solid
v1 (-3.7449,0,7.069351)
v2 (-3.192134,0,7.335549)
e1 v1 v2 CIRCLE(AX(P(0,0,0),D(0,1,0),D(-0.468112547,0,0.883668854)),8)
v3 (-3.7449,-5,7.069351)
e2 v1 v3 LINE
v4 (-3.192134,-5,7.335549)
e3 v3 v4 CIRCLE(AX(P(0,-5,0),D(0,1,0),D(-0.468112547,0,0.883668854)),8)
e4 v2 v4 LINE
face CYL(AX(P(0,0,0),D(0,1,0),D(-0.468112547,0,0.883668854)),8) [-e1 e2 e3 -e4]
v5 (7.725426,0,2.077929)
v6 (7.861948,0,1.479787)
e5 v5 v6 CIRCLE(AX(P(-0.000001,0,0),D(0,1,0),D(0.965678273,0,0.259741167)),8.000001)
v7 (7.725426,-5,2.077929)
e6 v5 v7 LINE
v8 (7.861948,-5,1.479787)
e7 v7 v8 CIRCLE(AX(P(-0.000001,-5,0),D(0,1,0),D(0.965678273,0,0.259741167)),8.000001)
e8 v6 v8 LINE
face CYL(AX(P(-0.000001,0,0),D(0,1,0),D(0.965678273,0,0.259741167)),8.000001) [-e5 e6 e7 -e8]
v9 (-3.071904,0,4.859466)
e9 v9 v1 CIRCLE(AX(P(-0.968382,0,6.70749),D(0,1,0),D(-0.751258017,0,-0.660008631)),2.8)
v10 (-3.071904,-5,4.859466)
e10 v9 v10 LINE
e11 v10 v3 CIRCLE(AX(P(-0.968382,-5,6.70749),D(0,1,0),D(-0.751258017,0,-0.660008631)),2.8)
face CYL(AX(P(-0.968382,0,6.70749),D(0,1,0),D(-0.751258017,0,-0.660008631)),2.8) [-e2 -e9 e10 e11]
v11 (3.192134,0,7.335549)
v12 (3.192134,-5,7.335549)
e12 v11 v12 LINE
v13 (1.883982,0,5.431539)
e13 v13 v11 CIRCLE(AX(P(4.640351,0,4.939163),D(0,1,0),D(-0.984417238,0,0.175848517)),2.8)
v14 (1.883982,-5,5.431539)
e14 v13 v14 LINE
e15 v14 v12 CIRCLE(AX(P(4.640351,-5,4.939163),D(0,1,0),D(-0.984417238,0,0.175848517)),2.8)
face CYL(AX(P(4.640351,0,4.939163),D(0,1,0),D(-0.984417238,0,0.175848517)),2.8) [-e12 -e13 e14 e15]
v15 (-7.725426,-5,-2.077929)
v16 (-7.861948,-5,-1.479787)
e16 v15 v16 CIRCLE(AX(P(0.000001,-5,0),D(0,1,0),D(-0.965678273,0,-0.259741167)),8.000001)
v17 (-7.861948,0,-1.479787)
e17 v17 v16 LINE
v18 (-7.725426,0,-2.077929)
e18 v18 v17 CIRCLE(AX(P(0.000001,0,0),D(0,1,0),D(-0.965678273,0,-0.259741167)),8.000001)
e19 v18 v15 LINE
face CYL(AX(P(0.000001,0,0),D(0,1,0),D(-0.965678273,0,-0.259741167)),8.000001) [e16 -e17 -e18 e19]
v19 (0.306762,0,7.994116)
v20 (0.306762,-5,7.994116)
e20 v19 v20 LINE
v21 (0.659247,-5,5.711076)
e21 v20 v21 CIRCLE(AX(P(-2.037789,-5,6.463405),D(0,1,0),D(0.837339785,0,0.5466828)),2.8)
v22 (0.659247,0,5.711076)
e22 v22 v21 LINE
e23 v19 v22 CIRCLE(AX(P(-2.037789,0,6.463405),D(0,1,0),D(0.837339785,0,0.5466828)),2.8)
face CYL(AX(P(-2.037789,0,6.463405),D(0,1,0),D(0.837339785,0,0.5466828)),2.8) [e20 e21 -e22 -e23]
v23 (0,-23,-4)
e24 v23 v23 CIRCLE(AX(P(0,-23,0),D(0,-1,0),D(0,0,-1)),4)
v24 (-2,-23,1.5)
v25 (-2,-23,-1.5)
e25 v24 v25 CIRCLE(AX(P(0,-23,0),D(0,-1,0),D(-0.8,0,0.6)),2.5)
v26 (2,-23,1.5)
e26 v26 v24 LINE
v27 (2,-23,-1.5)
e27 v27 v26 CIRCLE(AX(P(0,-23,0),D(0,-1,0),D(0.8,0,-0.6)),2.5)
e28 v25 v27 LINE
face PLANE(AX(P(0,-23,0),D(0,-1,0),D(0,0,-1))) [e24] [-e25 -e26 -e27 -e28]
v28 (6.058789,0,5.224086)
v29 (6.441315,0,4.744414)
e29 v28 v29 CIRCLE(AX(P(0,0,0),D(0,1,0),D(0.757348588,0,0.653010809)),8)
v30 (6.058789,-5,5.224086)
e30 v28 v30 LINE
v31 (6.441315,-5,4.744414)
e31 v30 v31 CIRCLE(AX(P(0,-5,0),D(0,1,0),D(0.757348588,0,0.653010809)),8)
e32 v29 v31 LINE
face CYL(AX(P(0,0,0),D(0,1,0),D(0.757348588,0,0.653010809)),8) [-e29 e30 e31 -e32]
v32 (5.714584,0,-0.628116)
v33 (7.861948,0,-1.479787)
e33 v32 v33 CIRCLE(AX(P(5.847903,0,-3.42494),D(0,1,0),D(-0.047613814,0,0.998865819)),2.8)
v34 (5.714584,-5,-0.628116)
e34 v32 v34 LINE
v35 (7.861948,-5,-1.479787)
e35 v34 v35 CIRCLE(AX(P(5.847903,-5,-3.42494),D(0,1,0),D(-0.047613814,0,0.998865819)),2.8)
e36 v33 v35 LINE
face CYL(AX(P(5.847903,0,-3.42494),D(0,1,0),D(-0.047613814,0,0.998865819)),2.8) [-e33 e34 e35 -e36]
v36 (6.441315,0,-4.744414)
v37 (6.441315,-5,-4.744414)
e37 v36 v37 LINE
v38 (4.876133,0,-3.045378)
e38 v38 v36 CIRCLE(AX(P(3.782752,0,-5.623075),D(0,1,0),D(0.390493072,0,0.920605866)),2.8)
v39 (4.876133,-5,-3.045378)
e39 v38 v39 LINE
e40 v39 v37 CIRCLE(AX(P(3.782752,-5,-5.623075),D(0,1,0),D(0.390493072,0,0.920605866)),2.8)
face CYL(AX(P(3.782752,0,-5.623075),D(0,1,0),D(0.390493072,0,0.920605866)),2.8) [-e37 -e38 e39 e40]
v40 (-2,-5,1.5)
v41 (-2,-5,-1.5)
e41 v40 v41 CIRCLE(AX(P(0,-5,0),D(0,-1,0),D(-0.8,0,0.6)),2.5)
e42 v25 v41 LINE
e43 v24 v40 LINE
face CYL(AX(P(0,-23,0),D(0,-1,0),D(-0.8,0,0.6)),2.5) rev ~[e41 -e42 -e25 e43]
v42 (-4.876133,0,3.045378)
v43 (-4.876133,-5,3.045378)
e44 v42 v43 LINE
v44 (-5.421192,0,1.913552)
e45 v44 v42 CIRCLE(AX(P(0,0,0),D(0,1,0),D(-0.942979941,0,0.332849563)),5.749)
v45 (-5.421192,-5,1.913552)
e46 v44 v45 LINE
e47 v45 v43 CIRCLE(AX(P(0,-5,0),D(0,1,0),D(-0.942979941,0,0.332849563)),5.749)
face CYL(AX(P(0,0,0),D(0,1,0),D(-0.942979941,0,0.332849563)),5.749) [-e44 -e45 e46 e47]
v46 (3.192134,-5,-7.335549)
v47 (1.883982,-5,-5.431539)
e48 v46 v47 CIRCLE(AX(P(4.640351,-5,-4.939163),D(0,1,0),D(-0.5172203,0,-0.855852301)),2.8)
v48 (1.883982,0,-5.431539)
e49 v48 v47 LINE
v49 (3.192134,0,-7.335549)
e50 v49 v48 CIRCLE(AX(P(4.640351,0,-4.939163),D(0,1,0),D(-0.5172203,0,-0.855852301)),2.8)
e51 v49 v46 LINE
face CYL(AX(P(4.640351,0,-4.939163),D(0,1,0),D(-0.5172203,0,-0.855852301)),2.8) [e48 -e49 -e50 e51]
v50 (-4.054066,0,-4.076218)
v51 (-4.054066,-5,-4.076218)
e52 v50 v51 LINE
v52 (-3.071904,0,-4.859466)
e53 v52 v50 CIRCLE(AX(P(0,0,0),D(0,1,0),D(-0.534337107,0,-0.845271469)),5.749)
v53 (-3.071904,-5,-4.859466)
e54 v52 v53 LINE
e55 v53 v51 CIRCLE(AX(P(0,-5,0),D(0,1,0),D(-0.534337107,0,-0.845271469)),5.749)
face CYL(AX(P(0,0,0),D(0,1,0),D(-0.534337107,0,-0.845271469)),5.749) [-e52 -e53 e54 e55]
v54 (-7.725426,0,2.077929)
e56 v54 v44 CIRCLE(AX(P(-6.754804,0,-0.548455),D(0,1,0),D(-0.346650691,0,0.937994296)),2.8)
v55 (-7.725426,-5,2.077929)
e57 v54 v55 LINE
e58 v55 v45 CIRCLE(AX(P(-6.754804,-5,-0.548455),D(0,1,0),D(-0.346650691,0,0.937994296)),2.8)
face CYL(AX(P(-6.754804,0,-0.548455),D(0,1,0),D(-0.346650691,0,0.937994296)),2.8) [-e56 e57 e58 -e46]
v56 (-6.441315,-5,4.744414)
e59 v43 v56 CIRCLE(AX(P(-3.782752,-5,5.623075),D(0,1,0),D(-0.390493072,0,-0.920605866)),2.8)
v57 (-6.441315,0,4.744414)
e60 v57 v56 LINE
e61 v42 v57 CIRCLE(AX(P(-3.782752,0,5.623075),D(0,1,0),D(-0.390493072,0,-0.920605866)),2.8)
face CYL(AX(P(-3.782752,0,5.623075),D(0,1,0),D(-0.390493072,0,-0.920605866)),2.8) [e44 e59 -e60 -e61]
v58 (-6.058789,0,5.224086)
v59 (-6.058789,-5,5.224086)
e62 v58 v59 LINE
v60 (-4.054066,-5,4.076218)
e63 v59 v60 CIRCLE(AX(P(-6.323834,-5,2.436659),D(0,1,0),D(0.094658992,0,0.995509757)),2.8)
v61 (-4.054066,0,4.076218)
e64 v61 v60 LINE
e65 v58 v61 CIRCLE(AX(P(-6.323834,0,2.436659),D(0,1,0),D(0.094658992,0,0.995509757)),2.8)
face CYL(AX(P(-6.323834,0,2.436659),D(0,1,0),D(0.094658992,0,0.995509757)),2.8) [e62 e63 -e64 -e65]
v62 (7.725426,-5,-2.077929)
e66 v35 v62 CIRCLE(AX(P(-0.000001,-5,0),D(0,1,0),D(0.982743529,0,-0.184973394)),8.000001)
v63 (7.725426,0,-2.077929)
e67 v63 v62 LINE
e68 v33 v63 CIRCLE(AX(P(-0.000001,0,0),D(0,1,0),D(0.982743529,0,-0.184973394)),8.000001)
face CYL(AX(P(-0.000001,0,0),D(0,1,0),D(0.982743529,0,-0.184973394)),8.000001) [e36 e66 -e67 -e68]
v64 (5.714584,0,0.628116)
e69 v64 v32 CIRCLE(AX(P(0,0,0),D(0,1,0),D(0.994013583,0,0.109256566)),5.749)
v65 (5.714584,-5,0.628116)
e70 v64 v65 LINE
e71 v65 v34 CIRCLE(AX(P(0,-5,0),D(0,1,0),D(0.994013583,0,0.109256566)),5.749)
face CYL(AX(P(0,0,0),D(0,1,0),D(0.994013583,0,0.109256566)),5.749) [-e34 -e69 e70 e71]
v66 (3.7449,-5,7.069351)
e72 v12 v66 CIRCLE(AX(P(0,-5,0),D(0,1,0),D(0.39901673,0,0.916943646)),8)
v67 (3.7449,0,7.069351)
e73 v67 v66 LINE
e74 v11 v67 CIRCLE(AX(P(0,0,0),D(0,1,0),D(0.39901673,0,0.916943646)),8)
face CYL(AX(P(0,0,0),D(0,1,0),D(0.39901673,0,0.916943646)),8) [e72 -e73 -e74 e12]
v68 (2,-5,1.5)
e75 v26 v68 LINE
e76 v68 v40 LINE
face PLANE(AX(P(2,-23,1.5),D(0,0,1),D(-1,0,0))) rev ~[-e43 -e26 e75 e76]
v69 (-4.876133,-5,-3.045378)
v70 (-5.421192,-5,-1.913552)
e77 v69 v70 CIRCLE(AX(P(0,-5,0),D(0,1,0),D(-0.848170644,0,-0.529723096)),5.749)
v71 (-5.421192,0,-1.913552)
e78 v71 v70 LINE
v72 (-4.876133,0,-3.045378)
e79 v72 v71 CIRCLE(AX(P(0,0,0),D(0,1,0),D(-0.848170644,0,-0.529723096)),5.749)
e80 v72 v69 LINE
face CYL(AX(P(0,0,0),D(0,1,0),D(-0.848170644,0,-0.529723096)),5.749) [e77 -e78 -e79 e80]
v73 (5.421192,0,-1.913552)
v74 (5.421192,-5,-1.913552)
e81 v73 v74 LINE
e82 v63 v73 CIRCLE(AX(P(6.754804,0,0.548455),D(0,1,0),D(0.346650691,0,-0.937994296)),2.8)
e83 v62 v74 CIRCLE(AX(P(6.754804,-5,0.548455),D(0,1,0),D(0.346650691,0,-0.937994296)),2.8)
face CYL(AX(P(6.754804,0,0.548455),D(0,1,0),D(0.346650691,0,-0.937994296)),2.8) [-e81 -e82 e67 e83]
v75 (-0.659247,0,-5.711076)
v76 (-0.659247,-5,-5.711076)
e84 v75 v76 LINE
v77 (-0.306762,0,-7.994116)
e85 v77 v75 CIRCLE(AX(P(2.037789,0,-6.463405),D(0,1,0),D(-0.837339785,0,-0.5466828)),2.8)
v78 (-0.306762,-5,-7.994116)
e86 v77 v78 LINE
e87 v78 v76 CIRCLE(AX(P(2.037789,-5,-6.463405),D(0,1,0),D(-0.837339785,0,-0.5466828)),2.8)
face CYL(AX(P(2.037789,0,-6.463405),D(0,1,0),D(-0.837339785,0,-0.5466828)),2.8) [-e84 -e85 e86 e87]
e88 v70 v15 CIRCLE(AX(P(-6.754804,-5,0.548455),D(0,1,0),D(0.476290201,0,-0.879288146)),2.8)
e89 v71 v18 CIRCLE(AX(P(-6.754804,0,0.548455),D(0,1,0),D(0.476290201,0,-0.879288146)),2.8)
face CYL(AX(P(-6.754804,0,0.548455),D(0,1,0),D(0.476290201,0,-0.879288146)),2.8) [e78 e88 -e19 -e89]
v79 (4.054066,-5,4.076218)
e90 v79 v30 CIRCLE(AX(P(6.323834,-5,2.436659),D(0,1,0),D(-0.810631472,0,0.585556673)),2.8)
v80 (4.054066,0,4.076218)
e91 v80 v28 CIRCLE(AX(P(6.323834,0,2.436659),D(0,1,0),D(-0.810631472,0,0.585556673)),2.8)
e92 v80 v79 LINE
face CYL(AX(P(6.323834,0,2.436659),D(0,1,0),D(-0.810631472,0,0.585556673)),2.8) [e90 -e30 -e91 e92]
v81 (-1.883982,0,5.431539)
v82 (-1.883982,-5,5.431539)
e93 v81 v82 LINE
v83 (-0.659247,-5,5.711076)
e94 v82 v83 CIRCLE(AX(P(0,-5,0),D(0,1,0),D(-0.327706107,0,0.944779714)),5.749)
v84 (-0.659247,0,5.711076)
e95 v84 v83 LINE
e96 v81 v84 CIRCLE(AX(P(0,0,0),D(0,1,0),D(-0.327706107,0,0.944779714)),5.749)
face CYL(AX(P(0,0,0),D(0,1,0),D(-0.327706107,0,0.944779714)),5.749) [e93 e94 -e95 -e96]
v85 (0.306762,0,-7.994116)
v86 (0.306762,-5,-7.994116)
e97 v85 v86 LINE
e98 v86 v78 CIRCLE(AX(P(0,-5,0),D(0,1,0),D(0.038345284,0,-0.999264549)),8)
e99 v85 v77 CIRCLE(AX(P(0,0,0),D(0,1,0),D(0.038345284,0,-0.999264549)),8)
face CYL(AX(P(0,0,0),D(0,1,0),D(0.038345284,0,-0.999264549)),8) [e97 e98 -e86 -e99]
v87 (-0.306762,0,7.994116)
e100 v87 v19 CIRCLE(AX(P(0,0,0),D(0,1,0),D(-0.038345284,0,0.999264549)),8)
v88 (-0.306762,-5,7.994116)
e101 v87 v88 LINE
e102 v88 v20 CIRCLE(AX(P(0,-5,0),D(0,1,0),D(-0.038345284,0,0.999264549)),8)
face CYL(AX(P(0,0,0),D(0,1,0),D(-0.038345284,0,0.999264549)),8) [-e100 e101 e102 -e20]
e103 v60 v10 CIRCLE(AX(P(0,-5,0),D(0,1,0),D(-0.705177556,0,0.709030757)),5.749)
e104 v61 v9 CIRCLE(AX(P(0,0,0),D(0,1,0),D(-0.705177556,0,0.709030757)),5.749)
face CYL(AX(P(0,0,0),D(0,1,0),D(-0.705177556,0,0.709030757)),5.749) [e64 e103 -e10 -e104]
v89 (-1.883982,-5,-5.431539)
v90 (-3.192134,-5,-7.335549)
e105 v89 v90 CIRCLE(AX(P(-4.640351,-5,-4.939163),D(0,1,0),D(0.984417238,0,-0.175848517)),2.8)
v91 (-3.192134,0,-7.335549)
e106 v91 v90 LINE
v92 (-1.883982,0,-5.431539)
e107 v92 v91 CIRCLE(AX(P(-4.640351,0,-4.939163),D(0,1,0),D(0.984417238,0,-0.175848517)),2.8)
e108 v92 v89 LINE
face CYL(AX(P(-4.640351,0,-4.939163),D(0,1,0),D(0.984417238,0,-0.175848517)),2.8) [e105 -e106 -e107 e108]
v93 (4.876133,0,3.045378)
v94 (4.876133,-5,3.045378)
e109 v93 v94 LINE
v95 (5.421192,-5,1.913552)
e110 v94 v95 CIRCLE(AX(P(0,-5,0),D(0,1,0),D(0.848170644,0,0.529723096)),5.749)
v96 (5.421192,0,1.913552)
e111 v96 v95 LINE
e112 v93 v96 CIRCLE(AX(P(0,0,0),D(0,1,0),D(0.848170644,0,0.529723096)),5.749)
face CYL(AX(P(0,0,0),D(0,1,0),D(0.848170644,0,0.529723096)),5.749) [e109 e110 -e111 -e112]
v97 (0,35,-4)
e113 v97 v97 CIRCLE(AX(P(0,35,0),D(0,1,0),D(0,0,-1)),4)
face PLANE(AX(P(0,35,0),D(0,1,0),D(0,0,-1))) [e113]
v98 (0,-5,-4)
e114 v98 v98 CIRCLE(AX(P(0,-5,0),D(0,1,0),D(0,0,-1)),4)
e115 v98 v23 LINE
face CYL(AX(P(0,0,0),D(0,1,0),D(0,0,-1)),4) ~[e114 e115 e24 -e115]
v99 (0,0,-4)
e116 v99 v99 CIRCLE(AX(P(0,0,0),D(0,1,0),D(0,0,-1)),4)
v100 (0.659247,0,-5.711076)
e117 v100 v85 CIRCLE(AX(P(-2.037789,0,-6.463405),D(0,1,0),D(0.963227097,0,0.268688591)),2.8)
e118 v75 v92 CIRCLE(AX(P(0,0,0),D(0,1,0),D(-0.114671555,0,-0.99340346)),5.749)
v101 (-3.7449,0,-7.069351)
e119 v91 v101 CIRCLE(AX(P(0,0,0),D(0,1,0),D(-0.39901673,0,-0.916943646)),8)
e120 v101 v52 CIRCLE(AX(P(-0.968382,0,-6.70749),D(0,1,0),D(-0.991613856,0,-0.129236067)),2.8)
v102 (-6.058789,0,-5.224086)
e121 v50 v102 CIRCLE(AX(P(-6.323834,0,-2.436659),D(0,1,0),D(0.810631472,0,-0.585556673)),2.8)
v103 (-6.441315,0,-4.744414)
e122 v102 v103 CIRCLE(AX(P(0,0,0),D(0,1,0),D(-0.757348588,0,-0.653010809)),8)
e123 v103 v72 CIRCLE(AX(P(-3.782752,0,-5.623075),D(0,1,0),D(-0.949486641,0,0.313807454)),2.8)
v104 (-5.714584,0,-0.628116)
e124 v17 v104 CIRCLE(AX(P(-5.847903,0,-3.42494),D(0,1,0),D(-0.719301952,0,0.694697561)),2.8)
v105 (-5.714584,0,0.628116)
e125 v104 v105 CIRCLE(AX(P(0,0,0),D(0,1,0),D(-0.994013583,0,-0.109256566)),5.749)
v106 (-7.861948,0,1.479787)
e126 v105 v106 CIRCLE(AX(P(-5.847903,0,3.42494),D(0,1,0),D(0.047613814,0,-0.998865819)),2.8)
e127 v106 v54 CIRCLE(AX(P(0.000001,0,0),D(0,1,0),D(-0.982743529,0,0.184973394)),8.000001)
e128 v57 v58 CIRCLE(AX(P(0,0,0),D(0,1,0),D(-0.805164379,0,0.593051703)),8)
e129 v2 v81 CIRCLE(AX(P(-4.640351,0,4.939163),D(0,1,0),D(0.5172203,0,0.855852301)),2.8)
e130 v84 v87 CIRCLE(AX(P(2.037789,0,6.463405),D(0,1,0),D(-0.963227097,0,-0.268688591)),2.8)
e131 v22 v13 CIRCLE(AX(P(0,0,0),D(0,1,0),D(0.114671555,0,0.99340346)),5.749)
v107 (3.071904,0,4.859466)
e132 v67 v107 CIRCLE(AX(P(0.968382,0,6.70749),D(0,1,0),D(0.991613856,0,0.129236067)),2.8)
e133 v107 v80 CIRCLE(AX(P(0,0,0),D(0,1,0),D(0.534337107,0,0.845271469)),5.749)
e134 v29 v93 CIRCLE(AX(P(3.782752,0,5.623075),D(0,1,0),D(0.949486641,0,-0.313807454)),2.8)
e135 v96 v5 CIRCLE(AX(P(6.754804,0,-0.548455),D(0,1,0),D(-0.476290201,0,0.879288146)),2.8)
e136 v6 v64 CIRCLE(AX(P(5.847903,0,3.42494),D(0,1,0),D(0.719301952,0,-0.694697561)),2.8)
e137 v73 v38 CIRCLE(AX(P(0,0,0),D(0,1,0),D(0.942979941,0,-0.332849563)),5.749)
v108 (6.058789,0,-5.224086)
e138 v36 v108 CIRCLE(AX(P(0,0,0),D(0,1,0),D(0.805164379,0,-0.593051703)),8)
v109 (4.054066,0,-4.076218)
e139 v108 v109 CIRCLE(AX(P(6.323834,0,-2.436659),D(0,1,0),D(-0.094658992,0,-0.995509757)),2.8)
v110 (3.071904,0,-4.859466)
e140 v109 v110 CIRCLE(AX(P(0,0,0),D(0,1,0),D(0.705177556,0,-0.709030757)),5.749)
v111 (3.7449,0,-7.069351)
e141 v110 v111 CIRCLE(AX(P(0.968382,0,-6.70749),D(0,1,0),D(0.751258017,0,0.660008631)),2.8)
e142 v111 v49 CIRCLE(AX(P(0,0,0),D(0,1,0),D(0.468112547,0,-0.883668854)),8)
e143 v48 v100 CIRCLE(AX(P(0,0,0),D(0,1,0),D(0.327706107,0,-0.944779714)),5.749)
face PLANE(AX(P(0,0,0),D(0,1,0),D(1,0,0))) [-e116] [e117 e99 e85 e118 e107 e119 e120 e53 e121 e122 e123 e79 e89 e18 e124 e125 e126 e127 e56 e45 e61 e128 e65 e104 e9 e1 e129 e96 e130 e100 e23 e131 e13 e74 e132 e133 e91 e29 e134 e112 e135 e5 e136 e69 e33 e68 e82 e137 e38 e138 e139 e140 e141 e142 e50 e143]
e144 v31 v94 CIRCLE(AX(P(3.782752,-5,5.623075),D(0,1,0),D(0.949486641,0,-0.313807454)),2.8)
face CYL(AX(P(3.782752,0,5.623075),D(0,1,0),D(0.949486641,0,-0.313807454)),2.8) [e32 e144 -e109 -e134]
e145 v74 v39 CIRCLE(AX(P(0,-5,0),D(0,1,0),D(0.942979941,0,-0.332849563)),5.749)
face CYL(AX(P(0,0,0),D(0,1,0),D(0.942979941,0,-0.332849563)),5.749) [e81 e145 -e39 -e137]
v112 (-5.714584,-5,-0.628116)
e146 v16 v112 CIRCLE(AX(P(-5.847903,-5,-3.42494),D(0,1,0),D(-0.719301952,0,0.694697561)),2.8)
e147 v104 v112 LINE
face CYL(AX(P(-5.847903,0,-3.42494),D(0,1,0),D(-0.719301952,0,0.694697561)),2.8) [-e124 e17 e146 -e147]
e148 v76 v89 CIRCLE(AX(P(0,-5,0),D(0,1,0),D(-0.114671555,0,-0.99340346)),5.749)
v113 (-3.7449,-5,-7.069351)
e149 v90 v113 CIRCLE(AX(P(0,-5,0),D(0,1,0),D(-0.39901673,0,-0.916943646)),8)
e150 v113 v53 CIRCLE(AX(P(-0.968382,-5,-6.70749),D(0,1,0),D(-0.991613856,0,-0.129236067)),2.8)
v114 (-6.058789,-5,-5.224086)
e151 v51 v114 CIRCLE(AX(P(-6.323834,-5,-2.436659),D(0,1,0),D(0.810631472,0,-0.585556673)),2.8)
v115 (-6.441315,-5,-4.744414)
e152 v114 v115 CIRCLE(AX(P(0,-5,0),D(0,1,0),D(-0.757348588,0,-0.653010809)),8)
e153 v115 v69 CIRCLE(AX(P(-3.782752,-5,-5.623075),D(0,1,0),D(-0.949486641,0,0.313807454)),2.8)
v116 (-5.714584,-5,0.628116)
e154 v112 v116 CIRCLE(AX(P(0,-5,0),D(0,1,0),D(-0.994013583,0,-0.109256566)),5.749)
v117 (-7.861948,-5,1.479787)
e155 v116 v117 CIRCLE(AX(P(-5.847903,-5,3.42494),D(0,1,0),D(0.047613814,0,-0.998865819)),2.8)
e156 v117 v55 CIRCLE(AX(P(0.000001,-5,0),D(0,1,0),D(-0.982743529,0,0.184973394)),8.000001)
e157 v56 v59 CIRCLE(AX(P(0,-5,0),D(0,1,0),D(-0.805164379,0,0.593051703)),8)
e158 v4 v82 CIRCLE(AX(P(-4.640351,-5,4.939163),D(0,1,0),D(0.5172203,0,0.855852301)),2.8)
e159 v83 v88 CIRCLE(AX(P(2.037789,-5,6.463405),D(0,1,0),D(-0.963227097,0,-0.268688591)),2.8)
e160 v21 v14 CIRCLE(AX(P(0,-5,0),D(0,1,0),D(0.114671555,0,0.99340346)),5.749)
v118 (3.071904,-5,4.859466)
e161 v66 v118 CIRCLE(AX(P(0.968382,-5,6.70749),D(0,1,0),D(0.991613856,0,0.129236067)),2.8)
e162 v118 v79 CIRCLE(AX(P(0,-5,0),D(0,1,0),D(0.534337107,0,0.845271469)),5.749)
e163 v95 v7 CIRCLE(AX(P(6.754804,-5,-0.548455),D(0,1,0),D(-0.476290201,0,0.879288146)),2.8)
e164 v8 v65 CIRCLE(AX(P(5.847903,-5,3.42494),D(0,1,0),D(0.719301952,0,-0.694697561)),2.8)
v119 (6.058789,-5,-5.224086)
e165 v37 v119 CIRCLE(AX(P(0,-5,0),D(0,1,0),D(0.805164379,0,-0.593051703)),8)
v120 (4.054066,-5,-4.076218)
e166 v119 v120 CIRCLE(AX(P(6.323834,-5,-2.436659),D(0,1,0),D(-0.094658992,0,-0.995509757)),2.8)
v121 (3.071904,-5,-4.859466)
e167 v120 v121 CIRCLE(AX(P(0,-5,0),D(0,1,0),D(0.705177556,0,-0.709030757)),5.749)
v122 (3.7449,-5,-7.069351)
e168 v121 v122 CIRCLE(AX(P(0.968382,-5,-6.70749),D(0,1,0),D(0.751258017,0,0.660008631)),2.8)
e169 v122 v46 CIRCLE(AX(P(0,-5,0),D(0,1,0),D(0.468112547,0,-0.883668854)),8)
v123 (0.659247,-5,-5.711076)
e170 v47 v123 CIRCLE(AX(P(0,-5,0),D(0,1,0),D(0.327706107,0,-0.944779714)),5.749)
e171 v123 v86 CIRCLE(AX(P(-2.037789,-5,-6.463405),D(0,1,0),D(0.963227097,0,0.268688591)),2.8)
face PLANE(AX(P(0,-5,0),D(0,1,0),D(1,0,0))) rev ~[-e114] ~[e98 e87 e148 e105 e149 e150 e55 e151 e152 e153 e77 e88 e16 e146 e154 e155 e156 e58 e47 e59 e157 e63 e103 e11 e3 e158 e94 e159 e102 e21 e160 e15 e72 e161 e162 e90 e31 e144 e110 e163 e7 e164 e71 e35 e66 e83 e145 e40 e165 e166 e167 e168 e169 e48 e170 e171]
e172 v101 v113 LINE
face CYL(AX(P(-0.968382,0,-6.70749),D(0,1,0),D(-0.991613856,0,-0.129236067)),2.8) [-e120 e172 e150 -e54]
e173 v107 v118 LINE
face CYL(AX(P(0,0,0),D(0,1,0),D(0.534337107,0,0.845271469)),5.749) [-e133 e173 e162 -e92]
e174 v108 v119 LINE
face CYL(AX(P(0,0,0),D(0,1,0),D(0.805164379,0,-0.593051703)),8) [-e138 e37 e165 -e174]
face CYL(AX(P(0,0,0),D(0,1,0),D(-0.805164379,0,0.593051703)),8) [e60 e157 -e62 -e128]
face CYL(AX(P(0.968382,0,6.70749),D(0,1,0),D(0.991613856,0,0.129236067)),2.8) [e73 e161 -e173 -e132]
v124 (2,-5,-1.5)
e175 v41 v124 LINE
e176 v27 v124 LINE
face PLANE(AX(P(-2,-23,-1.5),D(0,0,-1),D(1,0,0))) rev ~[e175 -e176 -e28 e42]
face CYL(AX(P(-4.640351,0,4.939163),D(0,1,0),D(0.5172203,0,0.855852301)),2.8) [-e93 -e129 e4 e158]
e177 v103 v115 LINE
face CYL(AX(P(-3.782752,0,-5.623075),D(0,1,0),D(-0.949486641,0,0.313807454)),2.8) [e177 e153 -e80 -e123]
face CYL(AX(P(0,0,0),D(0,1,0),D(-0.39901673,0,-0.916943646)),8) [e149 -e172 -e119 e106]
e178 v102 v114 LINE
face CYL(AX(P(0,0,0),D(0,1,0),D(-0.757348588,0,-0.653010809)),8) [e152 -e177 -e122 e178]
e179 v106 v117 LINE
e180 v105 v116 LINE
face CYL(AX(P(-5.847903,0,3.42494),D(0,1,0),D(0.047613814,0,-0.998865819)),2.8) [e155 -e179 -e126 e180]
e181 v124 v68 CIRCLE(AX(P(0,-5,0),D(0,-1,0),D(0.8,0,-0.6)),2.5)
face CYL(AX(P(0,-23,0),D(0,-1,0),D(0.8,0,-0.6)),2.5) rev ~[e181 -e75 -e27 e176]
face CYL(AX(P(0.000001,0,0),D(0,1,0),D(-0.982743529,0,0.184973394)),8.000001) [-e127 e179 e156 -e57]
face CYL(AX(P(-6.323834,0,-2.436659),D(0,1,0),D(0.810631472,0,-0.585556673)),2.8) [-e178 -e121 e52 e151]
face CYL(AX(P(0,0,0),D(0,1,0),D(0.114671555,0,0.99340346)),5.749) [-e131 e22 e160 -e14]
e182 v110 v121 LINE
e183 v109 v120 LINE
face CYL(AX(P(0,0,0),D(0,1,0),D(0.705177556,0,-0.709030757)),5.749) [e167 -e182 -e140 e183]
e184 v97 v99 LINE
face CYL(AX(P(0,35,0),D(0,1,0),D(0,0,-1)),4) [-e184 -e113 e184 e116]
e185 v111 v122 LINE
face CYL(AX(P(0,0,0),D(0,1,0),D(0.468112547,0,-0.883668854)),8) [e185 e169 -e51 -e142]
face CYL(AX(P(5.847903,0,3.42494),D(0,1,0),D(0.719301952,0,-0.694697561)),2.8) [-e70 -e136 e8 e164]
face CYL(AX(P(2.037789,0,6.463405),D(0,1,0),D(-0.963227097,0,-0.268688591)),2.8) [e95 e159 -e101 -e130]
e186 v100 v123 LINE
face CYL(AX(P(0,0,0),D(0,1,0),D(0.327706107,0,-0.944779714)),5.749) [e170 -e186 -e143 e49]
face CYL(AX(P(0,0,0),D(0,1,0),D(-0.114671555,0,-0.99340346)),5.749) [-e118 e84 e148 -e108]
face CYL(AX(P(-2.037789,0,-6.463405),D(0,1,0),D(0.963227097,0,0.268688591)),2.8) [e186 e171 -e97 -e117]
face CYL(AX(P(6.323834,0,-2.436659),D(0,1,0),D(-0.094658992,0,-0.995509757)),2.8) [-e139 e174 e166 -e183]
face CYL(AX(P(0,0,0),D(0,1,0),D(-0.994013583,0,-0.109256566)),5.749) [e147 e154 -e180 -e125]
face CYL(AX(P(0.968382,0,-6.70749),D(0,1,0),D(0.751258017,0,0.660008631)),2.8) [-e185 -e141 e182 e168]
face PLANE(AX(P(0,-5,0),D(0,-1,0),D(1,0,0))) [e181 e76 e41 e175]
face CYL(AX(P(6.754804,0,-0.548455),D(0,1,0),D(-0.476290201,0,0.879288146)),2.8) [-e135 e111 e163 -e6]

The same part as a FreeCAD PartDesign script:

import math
import FreeCAD as App
import Part
import Sketcher

doc = App.newDocument("Part")
body = doc.addObject("PartDesign::Body", "Body")

# Sketch on XZ plane
sketch1 = body.newObject("Sketcher::SketchObject", "Sketch")
sketch1.AttachmentSupport = (doc.getObject("XZ_Plane"), [""])
sketch1.MapMode = "FlatFace"
sketch1.addGeometry(Part.ArcOfCircle(Part.Circle(App.Vector(0.97, 6.71, 0), App.Vector(0, 0, 1), 2.8), math.radians(-41), math.radians(7)), False)
sketch1.addGeometry(Part.ArcOfCircle(Part.Circle(App.Vector(0, 0, 0), App.Vector(0, 0, 1), 5.75), math.radians(45.16), math.radians(57.7)), False)
sketch1.addGeometry(Part.ArcOfCircle(Part.Circle(App.Vector(6.32, 2.44, 0), App.Vector(0, 0, 1), 2.8), math.radians(95), math.radians(144)), False)
sketch1.addGeometry(Part.ArcOfCircle(Part.Circle(App.Vector(0, 0, 0), App.Vector(0, 0, 1), 8), math.radians(36.37), math.radians(40.77)), False)
sketch1.addGeometry(Part.ArcOfCircle(Part.Circle(App.Vector(3.78, 5.62, 0), App.Vector(0, 0, 1), 2.8), math.radians(-67), math.radians(-18)), False)
sketch1.addGeometry(Part.ArcOfCircle(Part.Circle(App.Vector(0, 0, 0), App.Vector(0, 0, 1), 5.75), math.radians(19.44), math.radians(31.99)), False)
sketch1.addGeometry(Part.ArcOfCircle(Part.Circle(App.Vector(6.75, -0.55, 0), App.Vector(0, 0, 1), 2.8), math.radians(70), math.radians(118)), False)
sketch1.addGeometry(Part.ArcOfCircle(Part.Circle(App.Vector(0, 0, 0), App.Vector(0, 0, 1), 8), math.radians(10.66), math.radians(15.05)), False)
sketch1.addGeometry(Part.ArcOfCircle(Part.Circle(App.Vector(5.85, 3.42, 0), App.Vector(0, 0, 1), 2.8), math.radians(-93), math.radians(-44)), False)
sketch1.addGeometry(Part.ArcOfCircle(Part.Circle(App.Vector(0, 0, 0), App.Vector(0, 0, 1), 5.75), math.radians(-6.27), math.radians(6.27)), False)
sketch1.addGeometry(Part.ArcOfCircle(Part.Circle(App.Vector(5.85, -3.42, 0), App.Vector(0, 0, 1), 2.8), math.radians(44), math.radians(93)), False)
sketch1.addGeometry(Part.ArcOfCircle(Part.Circle(App.Vector(0, 0, 0), App.Vector(0, 0, 1), 8), math.radians(-15.05), math.radians(-10.66)), False)
sketch1.addGeometry(Part.ArcOfCircle(Part.Circle(App.Vector(6.75, 0.55, 0), App.Vector(0, 0, 1), 2.8), math.radians(-118), math.radians(-70)), False)
sketch1.addGeometry(Part.ArcOfCircle(Part.Circle(App.Vector(0, 0, 0), App.Vector(0, 0, 1), 5.75), math.radians(-31.99), math.radians(-19.44)), False)
sketch1.addGeometry(Part.ArcOfCircle(Part.Circle(App.Vector(3.78, -5.62, 0), App.Vector(0, 0, 1), 2.8), math.radians(18), math.radians(67)), False)
sketch1.addGeometry(Part.ArcOfCircle(Part.Circle(App.Vector(0, 0, 0), App.Vector(0, 0, 1), 8), math.radians(-40.77), math.radians(-36.37)), False)
sketch1.addGeometry(Part.ArcOfCircle(Part.Circle(App.Vector(6.32, -2.44, 0), App.Vector(0, 0, 1), 2.8), math.radians(-144), math.radians(-95)), False)
sketch1.addGeometry(Part.ArcOfCircle(Part.Circle(App.Vector(0, 0, 0), App.Vector(0, 0, 1), 5.75), math.radians(-57.7), math.radians(-45.16)), False)
sketch1.addGeometry(Part.ArcOfCircle(Part.Circle(App.Vector(0.97, -6.71, 0), App.Vector(0, 0, 1), 2.8), math.radians(-7), math.radians(41)), False)
sketch1.addGeometry(Part.ArcOfCircle(Part.Circle(App.Vector(0, 0, 0), App.Vector(0, 0, 1), 8), math.radians(-66.48), math.radians(-62.09)), False)
sketch1.addGeometry(Part.ArcOfCircle(Part.Circle(App.Vector(4.64, -4.94, 0), App.Vector(0, 0, 1), 2.8), math.radians(-170), math.radians(-121)), False)
sketch1.addGeometry(Part.ArcOfCircle(Part.Circle(App.Vector(0, 0, 0), App.Vector(0, 0, 1), 5.75), math.radians(-83.42), math.radians(-70.87)), False)
sketch1.addGeometry(Part.ArcOfCircle(Part.Circle(App.Vector(-2.04, -6.46, 0), App.Vector(0, 0, 1), 2.8), math.radians(-33), math.radians(16)), False)
sketch1.addGeometry(Part.ArcOfCircle(Part.Circle(App.Vector(0, 0, 0), App.Vector(0, 0, 1), 8), math.radians(-92.2), math.radians(-87.8)), False)
sketch1.addGeometry(Part.ArcOfCircle(Part.Circle(App.Vector(2.04, -6.46, 0), App.Vector(0, 0, 1), 2.8), math.radians(164), math.radians(213)), False)
sketch1.addGeometry(Part.ArcOfCircle(Part.Circle(App.Vector(0, 0, 0), App.Vector(0, 0, 1), 5.75), math.radians(-109.13), math.radians(-96.58)), False)
sketch1.addGeometry(Part.ArcOfCircle(Part.Circle(App.Vector(-4.64, -4.94, 0), App.Vector(0, 0, 1), 2.8), math.radians(-59), math.radians(-10)), False)
sketch1.addGeometry(Part.ArcOfCircle(Part.Circle(App.Vector(0, 0, 0), App.Vector(0, 0, 1), 8), math.radians(-117.91), math.radians(-113.52)), False)
sketch1.addGeometry(Part.ArcOfCircle(Part.Circle(App.Vector(-0.97, -6.71, 0), App.Vector(0, 0, 1), 2.8), math.radians(139), math.radians(187)), False)
sketch1.addGeometry(Part.ArcOfCircle(Part.Circle(App.Vector(0, 0, 0), App.Vector(0, 0, 1), 5.75), math.radians(-134.84), math.radians(-122.3)), False)
sketch1.addGeometry(Part.ArcOfCircle(Part.Circle(App.Vector(-6.32, -2.44, 0), App.Vector(0, 0, 1), 2.8), math.radians(-85), math.radians(-36)), False)
sketch1.addGeometry(Part.ArcOfCircle(Part.Circle(App.Vector(0, 0, 0), App.Vector(0, 0, 1), 8), math.radians(-143.63), math.radians(-139.23)), False)
sketch1.addGeometry(Part.ArcOfCircle(Part.Circle(App.Vector(-3.78, -5.62, 0), App.Vector(0, 0, 1), 2.8), math.radians(113), math.radians(162)), False)
sketch1.addGeometry(Part.ArcOfCircle(Part.Circle(App.Vector(0, 0, 0), App.Vector(0, 0, 1), 5.75), math.radians(-160.56), math.radians(-148.01)), False)
sketch1.addGeometry(Part.ArcOfCircle(Part.Circle(App.Vector(-6.75, 0.55, 0), App.Vector(0, 0, 1), 2.8), math.radians(-110), math.radians(-62)), False)
sketch1.addGeometry(Part.ArcOfCircle(Part.Circle(App.Vector(0, 0, 0), App.Vector(0, 0, 1), 8), math.radians(-169.34), math.radians(-164.95)), False)
sketch1.addGeometry(Part.ArcOfCircle(Part.Circle(App.Vector(-5.85, -3.42, 0), App.Vector(0, 0, 1), 2.8), math.radians(87), math.radians(136)), False)
sketch1.addGeometry(Part.ArcOfCircle(Part.Circle(App.Vector(0, 0, 0), App.Vector(0, 0, 1), 5.75), math.radians(173.73), math.radians(186.27)), False)
sketch1.addGeometry(Part.ArcOfCircle(Part.Circle(App.Vector(-5.85, 3.42, 0), App.Vector(0, 0, 1), 2.8), math.radians(-136), math.radians(-87)), False)
sketch1.addGeometry(Part.ArcOfCircle(Part.Circle(App.Vector(0, 0, 0), App.Vector(0, 0, 1), 8), math.radians(164.95), math.radians(169.34)), False)
sketch1.addGeometry(Part.ArcOfCircle(Part.Circle(App.Vector(-6.75, -0.55, 0), App.Vector(0, 0, 1), 2.8), math.radians(62), math.radians(110)), False)
sketch1.addGeometry(Part.ArcOfCircle(Part.Circle(App.Vector(0, 0, 0), App.Vector(0, 0, 1), 5.75), math.radians(148.01), math.radians(160.56)), False)
sketch1.addGeometry(Part.ArcOfCircle(Part.Circle(App.Vector(-3.78, 5.62, 0), App.Vector(0, 0, 1), 2.8), math.radians(-162), math.radians(-113)), False)
sketch1.addGeometry(Part.ArcOfCircle(Part.Circle(App.Vector(0, 0, 0), App.Vector(0, 0, 1), 8), math.radians(139.23), math.radians(143.63)), False)
sketch1.addGeometry(Part.ArcOfCircle(Part.Circle(App.Vector(-6.32, 2.44, 0), App.Vector(0, 0, 1), 2.8), math.radians(36), math.radians(85)), False)
sketch1.addGeometry(Part.ArcOfCircle(Part.Circle(App.Vector(0, 0, 0), App.Vector(0, 0, 1), 5.75), math.radians(122.3), math.radians(134.84)), False)
sketch1.addGeometry(Part.ArcOfCircle(Part.Circle(App.Vector(-0.97, 6.71, 0), App.Vector(0, 0, 1), 2.8), math.radians(173), math.radians(221)), False)
sketch1.addGeometry(Part.ArcOfCircle(Part.Circle(App.Vector(0, 0, 0), App.Vector(0, 0, 1), 8), math.radians(113.52), math.radians(117.91)), False)
sketch1.addGeometry(Part.ArcOfCircle(Part.Circle(App.Vector(-4.64, 4.94, 0), App.Vector(0, 0, 1), 2.8), math.radians(10), math.radians(59)), False)
sketch1.addGeometry(Part.ArcOfCircle(Part.Circle(App.Vector(0, 0, 0), App.Vector(0, 0, 1), 5.75), math.radians(96.58), math.radians(109.13)), False)
sketch1.addGeometry(Part.ArcOfCircle(Part.Circle(App.Vector(2.04, 6.46, 0), App.Vector(0, 0, 1), 2.8), math.radians(147), math.radians(196)), False)
sketch1.addGeometry(Part.ArcOfCircle(Part.Circle(App.Vector(0, 0, 0), App.Vector(0, 0, 1), 8), math.radians(87.8), math.radians(92.2)), False)
sketch1.addGeometry(Part.ArcOfCircle(Part.Circle(App.Vector(-2.04, 6.46, 0), App.Vector(0, 0, 1), 2.8), math.radians(-16), math.radians(33)), False)
sketch1.addGeometry(Part.ArcOfCircle(Part.Circle(App.Vector(0, 0, 0), App.Vector(0, 0, 1), 5.75), math.radians(70.87), math.radians(83.42)), False)
sketch1.addGeometry(Part.ArcOfCircle(Part.Circle(App.Vector(4.64, 4.94, 0), App.Vector(0, 0, 1), 2.8), math.radians(121), math.radians(170)), False)
sketch1.addGeometry(Part.ArcOfCircle(Part.Circle(App.Vector(0, 0, 0), App.Vector(0, 0, 1), 8), math.radians(62.09), math.radians(66.48)), False)
sketch1.addGeometry(Part.Circle(App.Vector(0, 0, 0), App.Vector(0, 0, 1), 0.4), False)
sketch1.addConstraint(Sketcher.Constraint("Coincident", 0, 1, 1, 2))
sketch1.addConstraint(Sketcher.Constraint("Coincident", 1, 1, 2, 2))
sketch1.addConstraint(Sketcher.Constraint("Coincident", 2, 1, 3, 2))
sketch1.addConstraint(Sketcher.Constraint("Coincident", 3, 1, 4, 2))
sketch1.addConstraint(Sketcher.Constraint("Coincident", 4, 1, 5, 2))
sketch1.addConstraint(Sketcher.Constraint("Coincident", 5, 1, 6, 2))
sketch1.addConstraint(Sketcher.Constraint("Coincident", 6, 1, 7, 2))
sketch1.addConstraint(Sketcher.Constraint("Coincident", 7, 1, 8, 2))
sketch1.addConstraint(Sketcher.Constraint("Coincident", 8, 1, 9, 2))
sketch1.addConstraint(Sketcher.Constraint("Coincident", 9, 1, 10, 2))
sketch1.addConstraint(Sketcher.Constraint("Coincident", 10, 1, 11, 2))
sketch1.addConstraint(Sketcher.Constraint("Coincident", 11, 1, 12, 2))
sketch1.addConstraint(Sketcher.Constraint("Coincident", 12, 1, 13, 2))
sketch1.addConstraint(Sketcher.Constraint("Coincident", 13, 1, 14, 2))
sketch1.addConstraint(Sketcher.Constraint("Coincident", 14, 1, 15, 2))
sketch1.addConstraint(Sketcher.Constraint("Coincident", 15, 1, 16, 2))
sketch1.addConstraint(Sketcher.Constraint("Coincident", 16, 1, 17, 2))
sketch1.addConstraint(Sketcher.Constraint("Coincident", 17, 1, 18, 2))
sketch1.addConstraint(Sketcher.Constraint("Coincident", 18, 1, 19, 2))
sketch1.addConstraint(Sketcher.Constraint("Coincident", 19, 1, 20, 2))
sketch1.addConstraint(Sketcher.Constraint("Coincident", 20, 1, 21, 2))
sketch1.addConstraint(Sketcher.Constraint("Coincident", 21, 1, 22, 2))
sketch1.addConstraint(Sketcher.Constraint("Coincident", 22, 1, 23, 2))
sketch1.addConstraint(Sketcher.Constraint("Coincident", 23, 1, 24, 2))
sketch1.addConstraint(Sketcher.Constraint("Coincident", 24, 1, 25, 2))
sketch1.addConstraint(Sketcher.Constraint("Coincident", 25, 1, 26, 2))
sketch1.addConstraint(Sketcher.Constraint("Coincident", 26, 1, 27, 2))
sketch1.addConstraint(Sketcher.Constraint("Coincident", 27, 1, 28, 2))
sketch1.addConstraint(Sketcher.Constraint("Coincident", 28, 1, 29, 2))
sketch1.addConstraint(Sketcher.Constraint("Coincident", 29, 1, 30, 2))
sketch1.addConstraint(Sketcher.Constraint("Coincident", 30, 1, 31, 2))
sketch1.addConstraint(Sketcher.Constraint("Coincident", 31, 1, 32, 2))
sketch1.addConstraint(Sketcher.Constraint("Coincident", 32, 1, 33, 2))
sketch1.addConstraint(Sketcher.Constraint("Coincident", 33, 1, 34, 2))
sketch1.addConstraint(Sketcher.Constraint("Coincident", 34, 1, 35, 2))
sketch1.addConstraint(Sketcher.Constraint("Coincident", 35, 1, 36, 2))
sketch1.addConstraint(Sketcher.Constraint("Coincident", 36, 1, 37, 2))
sketch1.addConstraint(Sketcher.Constraint("Coincident", 37, 1, 38, 2))
sketch1.addConstraint(Sketcher.Constraint("Coincident", 38, 1, 39, 2))
sketch1.addConstraint(Sketcher.Constraint("Coincident", 39, 1, 40, 2))
sketch1.addConstraint(Sketcher.Constraint("Coincident", 40, 1, 41, 2))
sketch1.addConstraint(Sketcher.Constraint("Coincident", 41, 1, 42, 2))
sketch1.addConstraint(Sketcher.Constraint("Coincident", 42, 1, 43, 2))
sketch1.addConstraint(Sketcher.Constraint("Coincident", 43, 1, 44, 2))
sketch1.addConstraint(Sketcher.Constraint("Coincident", 44, 1, 45, 2))
sketch1.addConstraint(Sketcher.Constraint("Coincident", 45, 1, 46, 2))
sketch1.addConstraint(Sketcher.Constraint("Coincident", 46, 1, 47, 2))
sketch1.addConstraint(Sketcher.Constraint("Coincident", 47, 1, 48, 2))
sketch1.addConstraint(Sketcher.Constraint("Coincident", 48, 1, 49, 2))
sketch1.addConstraint(Sketcher.Constraint("Coincident", 49, 1, 50, 2))
sketch1.addConstraint(Sketcher.Constraint("Coincident", 50, 1, 51, 2))
sketch1.addConstraint(Sketcher.Constraint("Coincident", 51, 1, 52, 2))
sketch1.addConstraint(Sketcher.Constraint("Coincident", 52, 1, 53, 2))
sketch1.addConstraint(Sketcher.Constraint("Coincident", 53, 1, 54, 2))
sketch1.addConstraint(Sketcher.Constraint("Coincident", 54, 1, 55, 2))
sketch1.addConstraint(Sketcher.Constraint("Coincident", 55, 1, 0, 2))
sketch1.addConstraint(Sketcher.Constraint("Coincident", 1, 3, -1, 1))
sketch1.addConstraint(Sketcher.Constraint("Coincident", 3, 3, -1, 1))
sketch1.addConstraint(Sketcher.Constraint("Coincident", 5, 3, -1, 1))
sketch1.addConstraint(Sketcher.Constraint("Coincident", 7, 3, -1, 1))
sketch1.addConstraint(Sketcher.Constraint("Coincident", 9, 3, -1, 1))
sketch1.addConstraint(Sketcher.Constraint("Coincident", 11, 3, -1, 1))
sketch1.addConstraint(Sketcher.Constraint("Coincident", 13, 3, -1, 1))
sketch1.addConstraint(Sketcher.Constraint("Coincident", 15, 3, -1, 1))
sketch1.addConstraint(Sketcher.Constraint("Coincident", 17, 3, -1, 1))
sketch1.addConstraint(Sketcher.Constraint("Coincident", 19, 3, -1, 1))
sketch1.addConstraint(Sketcher.Constraint("Coincident", 21, 3, -1, 1))
sketch1.addConstraint(Sketcher.Constraint("Coincident", 23, 3, -1, 1))
sketch1.addConstraint(Sketcher.Constraint("Coincident", 25, 3, -1, 1))
sketch1.addConstraint(Sketcher.Constraint("Coincident", 27, 3, -1, 1))
sketch1.addConstraint(Sketcher.Constraint("Coincident", 29, 3, -1, 1))
sketch1.addConstraint(Sketcher.Constraint("Coincident", 31, 3, -1, 1))
sketch1.addConstraint(Sketcher.Constraint("Coincident", 33, 3, -1, 1))
sketch1.addConstraint(Sketcher.Constraint("Coincident", 35, 3, -1, 1))
sketch1.addConstraint(Sketcher.Constraint("Coincident", 37, 3, -1, 1))
sketch1.addConstraint(Sketcher.Constraint("Coincident", 39, 3, -1, 1))
sketch1.addConstraint(Sketcher.Constraint("Coincident", 41, 3, -1, 1))
sketch1.addConstraint(Sketcher.Constraint("Coincident", 43, 3, -1, 1))
sketch1.addConstraint(Sketcher.Constraint("Coincident", 45, 3, -1, 1))
sketch1.addConstraint(Sketcher.Constraint("Coincident", 47, 3, -1, 1))
sketch1.addConstraint(Sketcher.Constraint("Coincident", 49, 3, -1, 1))
sketch1.addConstraint(Sketcher.Constraint("Coincident", 51, 3, -1, 1))
sketch1.addConstraint(Sketcher.Constraint("Coincident", 53, 3, -1, 1))
sketch1.addConstraint(Sketcher.Constraint("Coincident", 55, 3, -1, 1))
sketch1.addConstraint(Sketcher.Constraint("Coincident", 56, 3, -1, 1))
sketch1.addConstraint(Sketcher.Constraint("Equal", 0, 2))
sketch1.addConstraint(Sketcher.Constraint("Equal", 2, 4))
sketch1.addConstraint(Sketcher.Constraint("Equal", 1, 5))
sketch1.addConstraint(Sketcher.Constraint("Equal", 4, 6))
sketch1.addConstraint(Sketcher.Constraint("Equal", 3, 7))
sketch1.addConstraint(Sketcher.Constraint("Equal", 6, 8))
sketch1.addConstraint(Sketcher.Constraint("Equal", 5, 9))
sketch1.addConstraint(Sketcher.Constraint("Equal", 8, 10))
sketch1.addConstraint(Sketcher.Constraint("Equal", 7, 11))
sketch1.addConstraint(Sketcher.Constraint("Equal", 10, 12))
sketch1.addConstraint(Sketcher.Constraint("Equal", 9, 13))
sketch1.addConstraint(Sketcher.Constraint("Equal", 12, 14))
sketch1.addConstraint(Sketcher.Constraint("Equal", 11, 15))
sketch1.addConstraint(Sketcher.Constraint("Equal", 14, 16))
sketch1.addConstraint(Sketcher.Constraint("Equal", 13, 17))
sketch1.addConstraint(Sketcher.Constraint("Equal", 16, 18))
sketch1.addConstraint(Sketcher.Constraint("Equal", 15, 19))
sketch1.addConstraint(Sketcher.Constraint("Equal", 18, 20))
sketch1.addConstraint(Sketcher.Constraint("Equal", 17, 21))
sketch1.addConstraint(Sketcher.Constraint("Equal", 20, 22))
sketch1.addConstraint(Sketcher.Constraint("Equal", 19, 23))
sketch1.addConstraint(Sketcher.Constraint("Equal", 22, 24))
sketch1.addConstraint(Sketcher.Constraint("Equal", 21, 25))
sketch1.addConstraint(Sketcher.Constraint("Equal", 24, 26))
sketch1.addConstraint(Sketcher.Constraint("Equal", 23, 27))
sketch1.addConstraint(Sketcher.Constraint("Equal", 26, 28))
sketch1.addConstraint(Sketcher.Constraint("Equal", 25, 29))
sketch1.addConstraint(Sketcher.Constraint("Equal", 28, 30))
sketch1.addConstraint(Sketcher.Constraint("Equal", 27, 31))
sketch1.addConstraint(Sketcher.Constraint("Equal", 30, 32))
sketch1.addConstraint(Sketcher.Constraint("Equal", 29, 33))
sketch1.addConstraint(Sketcher.Constraint("Equal", 32, 34))
sketch1.addConstraint(Sketcher.Constraint("Equal", 31, 35))
sketch1.addConstraint(Sketcher.Constraint("Equal", 34, 36))
sketch1.addConstraint(Sketcher.Constraint("Equal", 33, 37))
sketch1.addConstraint(Sketcher.Constraint("Equal", 36, 38))
sketch1.addConstraint(Sketcher.Constraint("Equal", 35, 39))
sketch1.addConstraint(Sketcher.Constraint("Equal", 38, 40))
sketch1.addConstraint(Sketcher.Constraint("Equal", 37, 41))
sketch1.addConstraint(Sketcher.Constraint("Equal", 40, 42))
sketch1.addConstraint(Sketcher.Constraint("Equal", 39, 43))
sketch1.addConstraint(Sketcher.Constraint("Equal", 42, 44))
sketch1.addConstraint(Sketcher.Constraint("Equal", 41, 45))
sketch1.addConstraint(Sketcher.Constraint("Equal", 44, 46))
sketch1.addConstraint(Sketcher.Constraint("Equal", 43, 47))
sketch1.addConstraint(Sketcher.Constraint("Equal", 46, 48))
sketch1.addConstraint(Sketcher.Constraint("Equal", 45, 49))
sketch1.addConstraint(Sketcher.Constraint("Equal", 48, 50))
sketch1.addConstraint(Sketcher.Constraint("Equal", 47, 51))
sketch1.addConstraint(Sketcher.Constraint("Equal", 50, 52))
sketch1.addConstraint(Sketcher.Constraint("Equal", 49, 53))
sketch1.addConstraint(Sketcher.Constraint("Equal", 52, 54))
sketch1.addConstraint(Sketcher.Constraint("Equal", 51, 55))
sketch1.addConstraint(Sketcher.Constraint("Symmetric", 0, 3, 28, 3, -1, 1))
sketch1.addConstraint(Sketcher.Constraint("Symmetric", 2, 3, 30, 3, -1, 1))
sketch1.addConstraint(Sketcher.Constraint("Symmetric", 4, 3, 32, 3, -1, 1))
sketch1.addConstraint(Sketcher.Constraint("Symmetric", 6, 3, 34, 3, -1, 1))
sketch1.addConstraint(Sketcher.Constraint("Symmetric", 8, 3, 36, 3, -1, 1))
sketch1.addConstraint(Sketcher.Constraint("Symmetric", 10, 3, 38, 3, -1, 1))
sketch1.addConstraint(Sketcher.Constraint("Symmetric", 12, 3, 40, 3, -1, 1))
sketch1.addConstraint(Sketcher.Constraint("Symmetric", 14, 3, 42, 3, -1, 1))
sketch1.addConstraint(Sketcher.Constraint("Symmetric", 16, 3, 44, 3, -1, 1))
sketch1.addConstraint(Sketcher.Constraint("Symmetric", 18, 3, 46, 3, -1, 1))
sketch1.addConstraint(Sketcher.Constraint("Symmetric", 20, 3, 48, 3, -1, 1))
sketch1.addConstraint(Sketcher.Constraint("Symmetric", 22, 3, 50, 3, -1, 1))
sketch1.addConstraint(Sketcher.Constraint("Symmetric", 24, 3, 52, 3, -1, 1))
sketch1.addConstraint(Sketcher.Constraint("Symmetric", 26, 3, 54, 3, -1, 1))
sketch1.addConstraint(Sketcher.Constraint("Symmetric", 22, 3, 24, 3, -2))
sketch1.addConstraint(Sketcher.Constraint("Symmetric", 20, 3, 26, 3, -2))
sketch1.addConstraint(Sketcher.Constraint("Symmetric", 18, 3, 28, 3, -2))
sketch1.addConstraint(Sketcher.Constraint("Symmetric", 16, 3, 30, 3, -2))
sketch1.addConstraint(Sketcher.Constraint("Symmetric", 14, 3, 32, 3, -2))
sketch1.addConstraint(Sketcher.Constraint("Symmetric", 12, 3, 34, 3, -2))
sketch1.addConstraint(Sketcher.Constraint("Symmetric", 10, 3, 36, 3, -2))
sketch1.addConstraint(Sketcher.Constraint("Radius", 3, 8.0))
sketch1.addConstraint(Sketcher.Constraint("Diameter", 56, 0.8))
sketch1.addConstraint(Sketcher.Constraint("Radius", 0, 2.8))
sketch1.addConstraint(Sketcher.Constraint("Radius", 1, 5.749))
sketch1.addConstraint(Sketcher.Constraint("DistanceX", -1, 1, 18, 1, 3.7449))
sketch1.addConstraint(Sketcher.Constraint("DistanceX", -1, 1, 0, 3, 0.968382))
sketch1.addConstraint(Sketcher.Constraint("DistanceY", -1, 1, 2, 3, 2.436659))
sketch1.addConstraint(Sketcher.Constraint("DistanceY", -1, 1, 8, 3, 3.42494))
sketch1.addConstraint(Sketcher.Constraint("DistanceX", -1, 1, 20, 3, 4.640351))
sketch1.addConstraint(Sketcher.Constraint("DistanceX", 22, 3, -1, 1, 2.037789))
sketch1.addConstraint(Sketcher.Constraint("DistanceX", -1, 1, 2, 1, 6.058789))
sketch1.addConstraint(Sketcher.Constraint("DistanceY", -1, 1, 4, 1, 3.045378))
sketch1.addConstraint(Sketcher.Constraint("DistanceX", -1, 1, 5, 1, 5.421192))
sketch1.addConstraint(Sketcher.Constraint("DistanceY", -1, 1, 6, 1, 2.077929))
sketch1.addConstraint(Sketcher.Constraint("DistanceX", -1, 1, 7, 1, 7.861948))
sketch1.addConstraint(Sketcher.Constraint("DistanceY", 19, 1, -1, 1, 7.335549))
sketch1.addConstraint(Sketcher.Constraint("DistanceX", -1, 1, 4, 3, 3.782752))
sketch1.addConstraint(Sketcher.Constraint("DistanceY", 22, 3, -1, 1, 6.463405))
pad1 = body.newObject("PartDesign::Pad", "Pad")
pad1.Profile = sketch1
pad1.Length = 5

# Sketch on XZ plane
sketch2 = body.newObject("Sketcher::SketchObject", "Sketch001")
sketch2.AttachmentSupport = (doc.getObject("XZ_Plane"), [""])
sketch2.MapMode = "FlatFace"
sketch2.AttachmentOffset = App.Placement(App.Vector(0, 0, 5), App.Rotation())
sketch2.addGeometry(Part.Circle(App.Vector(0, 0, 0), App.Vector(0, 0, 1), 4), False)
sketch2.addConstraint(Sketcher.Constraint("Coincident", 0, 3, -1, 1))
sketch2.addConstraint(Sketcher.Constraint("Diameter", 0, 8.0))
pad2 = body.newObject("PartDesign::Pad", "Pad001")
pad2.Profile = sketch2
pad2.Type = "TwoLengths"
pad2.Length = 18
pad2.Length2 = 5

# Sketch on XZ plane
sketch3 = body.newObject("Sketcher::SketchObject", "Sketch002")
sketch3.AttachmentSupport = (doc.getObject("XZ_Plane"), [""])
sketch3.MapMode = "FlatFace"
sketch3.AttachmentOffset = App.Placement(App.Vector(0, 0, -35), App.Rotation())
sketch3.addGeometry(Part.Circle(App.Vector(0, 0, 0), App.Vector(0, 0, 1), 4), False)
sketch3.addConstraint(Sketcher.Constraint("Coincident", 0, 3, -1, 1))
sketch3.addConstraint(Sketcher.Constraint("Diameter", 0, 8.0))
pad3 = body.newObject("PartDesign::Pad", "Pad002")
pad3.Profile = sketch3
pad3.Length = 35

# Sketch on XZ plane
sketch4 = body.newObject("Sketcher::SketchObject", "Sketch003")
sketch4.AttachmentSupport = (doc.getObject("XZ_Plane"), [""])
sketch4.MapMode = "FlatFace"
sketch4.AttachmentOffset = App.Placement(App.Vector(0, 0, 23), App.Rotation())
sketch4.addGeometry(Part.LineSegment(App.Vector(-2, -1.5, 0), App.Vector(2, -1.5, 0)), False)
sketch4.addGeometry(Part.ArcOfCircle(Part.Circle(App.Vector(0, 0, 0), App.Vector(0, 0, 1), 2.5), math.radians(-37), math.radians(37)), False)
sketch4.addGeometry(Part.LineSegment(App.Vector(2, 1.5, 0), App.Vector(-2, 1.5, 0)), False)
sketch4.addGeometry(Part.ArcOfCircle(Part.Circle(App.Vector(0, 0, 0), App.Vector(0, 0, 1), 2.5), math.radians(143), math.radians(217)), False)
sketch4.addConstraint(Sketcher.Constraint("Coincident", 0, 2, 1, 1))
sketch4.addConstraint(Sketcher.Constraint("Coincident", 1, 2, 2, 1))
sketch4.addConstraint(Sketcher.Constraint("Coincident", 2, 2, 3, 1))
sketch4.addConstraint(Sketcher.Constraint("Coincident", 3, 2, 0, 1))
sketch4.addConstraint(Sketcher.Constraint("Horizontal", 0))
sketch4.addConstraint(Sketcher.Constraint("Horizontal", 2))
sketch4.addConstraint(Sketcher.Constraint("Coincident", 1, 3, -1, 1))
sketch4.addConstraint(Sketcher.Constraint("Coincident", 3, 3, -1, 1))
sketch4.addConstraint(Sketcher.Constraint("Equal", 1, 3))
sketch4.addConstraint(Sketcher.Constraint("Vertical", 0, 2, 1, 2))
sketch4.addConstraint(Sketcher.Constraint("Radius", 1, 2.5))
sketch4.addConstraint(Sketcher.Constraint("DistanceX", 0, 1, 0, 2, 4.0))
pocket1 = body.newObject("PartDesign::Pocket", "Pocket")
pocket1.Profile = sketch4
pocket1.Length = 18

doc.recompute()
